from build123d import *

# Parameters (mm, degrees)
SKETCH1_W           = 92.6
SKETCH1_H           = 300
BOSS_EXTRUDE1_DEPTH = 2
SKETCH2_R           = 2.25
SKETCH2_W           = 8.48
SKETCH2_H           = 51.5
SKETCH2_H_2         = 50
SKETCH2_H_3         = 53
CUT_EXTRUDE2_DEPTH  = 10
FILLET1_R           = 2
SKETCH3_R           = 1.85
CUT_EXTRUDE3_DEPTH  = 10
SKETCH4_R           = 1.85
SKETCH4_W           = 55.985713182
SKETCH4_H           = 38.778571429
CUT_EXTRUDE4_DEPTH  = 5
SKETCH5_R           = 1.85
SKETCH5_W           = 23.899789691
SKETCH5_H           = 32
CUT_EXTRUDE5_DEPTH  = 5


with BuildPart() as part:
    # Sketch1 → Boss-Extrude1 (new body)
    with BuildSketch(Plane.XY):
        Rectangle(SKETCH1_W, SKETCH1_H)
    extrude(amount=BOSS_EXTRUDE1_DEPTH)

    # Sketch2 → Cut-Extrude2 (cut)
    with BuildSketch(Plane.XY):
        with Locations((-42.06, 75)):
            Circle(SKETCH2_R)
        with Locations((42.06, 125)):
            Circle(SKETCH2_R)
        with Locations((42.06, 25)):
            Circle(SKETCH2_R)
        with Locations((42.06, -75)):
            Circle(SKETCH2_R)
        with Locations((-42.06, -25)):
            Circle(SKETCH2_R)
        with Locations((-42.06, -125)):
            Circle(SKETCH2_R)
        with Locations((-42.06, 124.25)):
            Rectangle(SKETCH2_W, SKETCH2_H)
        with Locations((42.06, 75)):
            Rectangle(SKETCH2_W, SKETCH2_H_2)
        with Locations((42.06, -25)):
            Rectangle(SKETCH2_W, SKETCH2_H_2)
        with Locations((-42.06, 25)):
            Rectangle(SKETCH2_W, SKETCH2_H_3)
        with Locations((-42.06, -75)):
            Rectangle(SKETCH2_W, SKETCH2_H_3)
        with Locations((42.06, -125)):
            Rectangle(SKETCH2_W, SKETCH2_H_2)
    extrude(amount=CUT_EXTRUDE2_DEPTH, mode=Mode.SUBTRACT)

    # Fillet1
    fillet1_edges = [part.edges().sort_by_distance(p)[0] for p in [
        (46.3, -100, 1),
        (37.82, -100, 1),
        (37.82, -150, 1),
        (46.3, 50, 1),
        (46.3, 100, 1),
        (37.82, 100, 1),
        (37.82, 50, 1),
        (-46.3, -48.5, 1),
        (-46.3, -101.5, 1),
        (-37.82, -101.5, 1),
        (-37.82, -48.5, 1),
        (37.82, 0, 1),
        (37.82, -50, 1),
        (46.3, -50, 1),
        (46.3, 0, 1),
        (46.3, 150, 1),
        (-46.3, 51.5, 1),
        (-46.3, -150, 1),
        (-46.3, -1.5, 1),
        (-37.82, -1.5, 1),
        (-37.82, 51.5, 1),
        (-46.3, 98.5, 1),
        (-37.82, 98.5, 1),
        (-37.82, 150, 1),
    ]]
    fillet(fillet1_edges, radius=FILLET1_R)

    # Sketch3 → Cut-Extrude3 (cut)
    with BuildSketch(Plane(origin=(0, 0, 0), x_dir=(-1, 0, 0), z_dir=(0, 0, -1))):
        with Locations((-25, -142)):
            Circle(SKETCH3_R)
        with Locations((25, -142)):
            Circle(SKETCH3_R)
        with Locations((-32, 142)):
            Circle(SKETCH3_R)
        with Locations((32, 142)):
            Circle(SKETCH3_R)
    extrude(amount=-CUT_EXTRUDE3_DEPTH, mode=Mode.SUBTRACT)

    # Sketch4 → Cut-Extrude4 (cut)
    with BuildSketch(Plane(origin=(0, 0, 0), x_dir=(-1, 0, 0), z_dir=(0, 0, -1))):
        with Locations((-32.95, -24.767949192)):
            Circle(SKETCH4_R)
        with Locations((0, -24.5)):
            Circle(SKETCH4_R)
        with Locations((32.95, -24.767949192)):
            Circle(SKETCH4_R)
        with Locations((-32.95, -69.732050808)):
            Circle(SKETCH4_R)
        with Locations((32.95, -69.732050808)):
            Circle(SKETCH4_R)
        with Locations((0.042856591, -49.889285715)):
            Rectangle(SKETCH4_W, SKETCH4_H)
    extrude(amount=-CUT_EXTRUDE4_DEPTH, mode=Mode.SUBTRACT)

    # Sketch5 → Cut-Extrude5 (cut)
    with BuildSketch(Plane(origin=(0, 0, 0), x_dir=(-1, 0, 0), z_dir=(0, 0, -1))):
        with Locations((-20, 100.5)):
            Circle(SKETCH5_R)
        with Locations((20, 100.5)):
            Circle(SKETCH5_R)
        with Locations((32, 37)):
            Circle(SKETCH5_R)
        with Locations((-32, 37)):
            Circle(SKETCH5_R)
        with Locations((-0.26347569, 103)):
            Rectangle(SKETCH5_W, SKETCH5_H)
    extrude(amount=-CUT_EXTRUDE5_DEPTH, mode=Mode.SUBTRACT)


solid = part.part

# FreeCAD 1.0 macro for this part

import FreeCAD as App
import Part
import Sketcher
from FreeCAD import Vector
Q = App.Units.Quantity


def edges_at(feature, points):
    """Names of the edges that pass closest to the given points."""
    edges = feature.Shape.Edges
    near = lambda p: min(range(len(edges)), key=lambda i: edges[i].distToShape(Part.Vertex(*p))[0])
    return sorted({f"Edge{near(p) + 1}" for p in points})

doc = App.newDocument("Part")
body = doc.addObject("PartDesign::Body", "Body")

# Sketch on XY plane
sketch1 = body.newObject("Sketcher::SketchObject", "Sketch")
sketch1.AttachmentSupport = (doc.getObject("XY_Plane"), [""])
sketch1.MapMode = "FlatFace"
sketch1.addGeometry(Part.LineSegment(Vector(-46, 150, 0), Vector(-46, -150, 0)), False)
sketch1.addGeometry(Part.LineSegment(Vector(-46, -150, 0), Vector(46, -150, 0)), False)
sketch1.addGeometry(Part.LineSegment(Vector(46, -150, 0), Vector(46, 150, 0)), False)
sketch1.addGeometry(Part.LineSegment(Vector(46, 150, 0), Vector(-46, 150, 0)), False)
sketch1.addConstraint(Sketcher.Constraint("Coincident", 0, 2, 1, 1))
sketch1.addConstraint(Sketcher.Constraint("Coincident", 1, 2, 2, 1))
sketch1.addConstraint(Sketcher.Constraint("Coincident", 2, 2, 3, 1))
sketch1.addConstraint(Sketcher.Constraint("Coincident", 3, 2, 0, 1))
sketch1.addConstraint(Sketcher.Constraint("Vertical", 0))
sketch1.addConstraint(Sketcher.Constraint("Horizontal", 1))
sketch1.addConstraint(Sketcher.Constraint("Vertical", 2))
sketch1.addConstraint(Sketcher.Constraint("Horizontal", 3))
sketch1.addConstraint(Sketcher.Constraint("Symmetric", 0, 2, 2, 2, -1, 1))
sketch1.addConstraint(Sketcher.Constraint("DistanceY", 0, 2, 0, 1, Q("300 mm")))
sketch1.addConstraint(Sketcher.Constraint("DistanceX", 1, 1, 1, 2, Q("92.6 mm")))
pad1 = body.newObject("PartDesign::Pad", "Pad")
pad1.Profile = sketch1
pad1.Length = 2

# Sketch on XY plane
sketch2 = body.newObject("Sketcher::SketchObject", "Sketch001")
sketch2.AttachmentSupport = (doc.getObject("XY_Plane"), [""])
sketch2.MapMode = "FlatFace"
sketch2.addGeometry(Part.Circle(Vector(-42.1, 75, 0), Vector(0, 0, 1), 2.2), False)
sketch2.addGeometry(Part.Circle(Vector(42.1, 125, 0), Vector(0, 0, 1), 2.2), False)
sketch2.addGeometry(Part.Circle(Vector(42.1, 25, 0), Vector(0, 0, 1), 2.2), False)
sketch2.addGeometry(Part.Circle(Vector(42.1, -75, 0), Vector(0, 0, 1), 2.2), False)
sketch2.addGeometry(Part.Circle(Vector(-42.1, -25, 0), Vector(0, 0, 1), 2.2), False)
sketch2.addGeometry(Part.Circle(Vector(-42.1, -125, 0), Vector(0, 0, 1), 2.2), False)
sketch2.addGeometry(Part.LineSegment(Vector(-46.3, 150, 0), Vector(-46.3, 98.5, 0)), False)
sketch2.addGeometry(Part.LineSegment(Vector(-46.3, 98.5, 0), Vector(-37.8, 98.5, 0)), False)
sketch2.addGeometry(Part.LineSegment(Vector(-37.8, 98.5, 0), Vector(-37.8, 150, 0)), False)
sketch2.addGeometry(Part.LineSegment(Vector(-37.8, 150, 0), Vector(-46.3, 150, 0)), False)
sketch2.addGeometry(Part.LineSegment(Vector(37.8, 100, 0), Vector(37.8, 50, 0)), False)
sketch2.addGeometry(Part.LineSegment(Vector(37.8, 50, 0), Vector(46.3, 50, 0)), False)
sketch2.addGeometry(Part.LineSegment(Vector(46.3, 50, 0), Vector(46.3, 100, 0)), False)
sketch2.addGeometry(Part.LineSegment(Vector(46.3, 100, 0), Vector(37.8, 100, 0)), False)
sketch2.addGeometry(Part.LineSegment(Vector(37.8, 0, 0), Vector(37.8, -50, 0)), False)
sketch2.addGeometry(Part.LineSegment(Vector(37.8, -50, 0), Vector(46.3, -50, 0)), False)
sketch2.addGeometry(Part.LineSegment(Vector(46.3, -50, 0), Vector(46.3, 0, 0)), False)
sketch2.addGeometry(Part.LineSegment(Vector(46.3, 0, 0), Vector(37.8, 0, 0)), False)
sketch2.addGeometry(Part.LineSegment(Vector(-46.3, 51.5, 0), Vector(-46.3, -1.5, 0)), False)
sketch2.addGeometry(Part.LineSegment(Vector(-46.3, -1.5, 0), Vector(-37.8, -1.5, 0)), False)
sketch2.addGeometry(Part.LineSegment(Vector(-37.8, -1.5, 0), Vector(-37.8, 51.5, 0)), False)
sketch2.addGeometry(Part.LineSegment(Vector(-37.8, 51.5, 0), Vector(-46.3, 51.5, 0)), False)
sketch2.addGeometry(Part.LineSegment(Vector(-46.3, -48.5, 0), Vector(-46.3, -101.5, 0)), False)
sketch2.addGeometry(Part.LineSegment(Vector(-46.3, -101.5, 0), Vector(-37.8, -101.5, 0)), False)
sketch2.addGeometry(Part.LineSegment(Vector(-37.8, -101.5, 0), Vector(-37.8, -48.5, 0)), False)
sketch2.addGeometry(Part.LineSegment(Vector(-37.8, -48.5, 0), Vector(-46.3, -48.5, 0)), False)
sketch2.addGeometry(Part.LineSegment(Vector(37.8, -100, 0), Vector(37.8, -150, 0)), False)
sketch2.addGeometry(Part.LineSegment(Vector(37.8, -150, 0), Vector(46.3, -150, 0)), False)
sketch2.addGeometry(Part.LineSegment(Vector(46.3, -150, 0), Vector(46.3, -100, 0)), False)
sketch2.addGeometry(Part.LineSegment(Vector(46.3, -100, 0), Vector(37.8, -100, 0)), False)
sketch2.addConstraint(Sketcher.Constraint("Coincident", 6, 2, 7, 1))
sketch2.addConstraint(Sketcher.Constraint("Coincident", 7, 2, 8, 1))
sketch2.addConstraint(Sketcher.Constraint("Coincident", 8, 2, 9, 1))
sketch2.addConstraint(Sketcher.Constraint("Coincident", 9, 2, 6, 1))
sketch2.addConstraint(Sketcher.Constraint("Coincident", 10, 2, 11, 1))
sketch2.addConstraint(Sketcher.Constraint("Coincident", 11, 2, 12, 1))
sketch2.addConstraint(Sketcher.Constraint("Coincident", 12, 2, 13, 1))
sketch2.addConstraint(Sketcher.Constraint("Coincident", 13, 2, 10, 1))
sketch2.addConstraint(Sketcher.Constraint("Coincident", 14, 2, 15, 1))
sketch2.addConstraint(Sketcher.Constraint("Coincident", 15, 2, 16, 1))
sketch2.addConstraint(Sketcher.Constraint("Coincident", 16, 2, 17, 1))
sketch2.addConstraint(Sketcher.Constraint("Coincident", 17, 2, 14, 1))
sketch2.addConstraint(Sketcher.Constraint("Coincident", 18, 2, 19, 1))
sketch2.addConstraint(Sketcher.Constraint("Coincident", 19, 2, 20, 1))
sketch2.addConstraint(Sketcher.Constraint("Coincident", 20, 2, 21, 1))
sketch2.addConstraint(Sketcher.Constraint("Coincident", 21, 2, 18, 1))
sketch2.addConstraint(Sketcher.Constraint("Coincident", 22, 2, 23, 1))
sketch2.addConstraint(Sketcher.Constraint("Coincident", 23, 2, 24, 1))
sketch2.addConstraint(Sketcher.Constraint("Coincident", 24, 2, 25, 1))
sketch2.addConstraint(Sketcher.Constraint("Coincident", 25, 2, 22, 1))
sketch2.addConstraint(Sketcher.Constraint("Coincident", 26, 2, 27, 1))
sketch2.addConstraint(Sketcher.Constraint("Coincident", 27, 2, 28, 1))
sketch2.addConstraint(Sketcher.Constraint("Coincident", 28, 2, 29, 1))
sketch2.addConstraint(Sketcher.Constraint("Coincident", 29, 2, 26, 1))
sketch2.addConstraint(Sketcher.Constraint("Vertical", 6))
sketch2.addConstraint(Sketcher.Constraint("Horizontal", 7))
sketch2.addConstraint(Sketcher.Constraint("Vertical", 8))
sketch2.addConstraint(Sketcher.Constraint("Horizontal", 9))
sketch2.addConstraint(Sketcher.Constraint("Vertical", 10))
sketch2.addConstraint(Sketcher.Constraint("Horizontal", 11))
sketch2.addConstraint(Sketcher.Constraint("Vertical", 12))
sketch2.addConstraint(Sketcher.Constraint("Horizontal", 13))
sketch2.addConstraint(Sketcher.Constraint("Vertical", 14))
sketch2.addConstraint(Sketcher.Constraint("Horizontal", 15))
sketch2.addConstraint(Sketcher.Constraint("Vertical", 16))
sketch2.addConstraint(Sketcher.Constraint("Horizontal", 17))
sketch2.addConstraint(Sketcher.Constraint("Vertical", 18))
sketch2.addConstraint(Sketcher.Constraint("Horizontal", 19))
sketch2.addConstraint(Sketcher.Constraint("Vertical", 20))
sketch2.addConstraint(Sketcher.Constraint("Horizontal", 21))
sketch2.addConstraint(Sketcher.Constraint("Vertical", 22))
sketch2.addConstraint(Sketcher.Constraint("Horizontal", 23))
sketch2.addConstraint(Sketcher.Constraint("Vertical", 24))
sketch2.addConstraint(Sketcher.Constraint("Horizontal", 25))
sketch2.addConstraint(Sketcher.Constraint("Vertical", 26))
sketch2.addConstraint(Sketcher.Constraint("Horizontal", 27))
sketch2.addConstraint(Sketcher.Constraint("Vertical", 28))
sketch2.addConstraint(Sketcher.Constraint("Horizontal", 29))
sketch2.addConstraint(Sketcher.Constraint("Equal", 0, 1))
sketch2.addConstraint(Sketcher.Constraint("Equal", 1, 2))
sketch2.addConstraint(Sketcher.Constraint("Equal", 2, 3))
sketch2.addConstraint(Sketcher.Constraint("Equal", 3, 4))
sketch2.addConstraint(Sketcher.Constraint("Equal", 4, 5))
sketch2.addConstraint(Sketcher.Constraint("Symmetric", 0, 3, 3, 3, -1, 1))
sketch2.addConstraint(Sketcher.Constraint("Symmetric", 2, 3, 4, 3, -1, 1))
sketch2.addConstraint(Sketcher.Constraint("Symmetric", 1, 3, 5, 3, -1, 1))
sketch2.addConstraint(Sketcher.Constraint("Symmetric", 8, 2, 26, 2, -1, 1))
sketch2.addConstraint(Sketcher.Constraint("Symmetric", 10, 2, 14, 2, -1))
sketch2.addConstraint(Sketcher.Constraint("Symmetric", 12, 2, 28, 2, -1))
sketch2.addConstraint(Sketcher.Constraint("PointOnObject", 16, 2, -1))
sketch2.addConstraint(Sketcher.Constraint("Vertical", 1, 3, 2, 3))
sketch2.addConstraint(Sketcher.Constraint("Vertical", 2, 3, 3, 3))
sketch2.addConstraint(Sketcher.Constraint("Vertical", 12, 2, 15, 2))
sketch2.addConstraint(Sketcher.Constraint("Vertical", 9, 2, 18, 2))
sketch2.addConstraint(Sketcher.Constraint("Vertical", 8, 2, 19, 2))
sketch2.addConstraint(Sketcher.Constraint("Vertical", 21, 2, 22, 2))
sketch2.addConstraint(Sketcher.Constraint("Vertical", 20, 2, 23, 2))
sketch2.addConstraint(Sketcher.Constraint("Vertical", 17, 2, 26, 2))
sketch2.addConstraint(Sketcher.Constraint("Equal", 9, 11))
sketch2.addConstraint(Sketcher.Constraint("Equal", 12, 14))
sketch2.addConstraint(Sketcher.Constraint("Equal", 20, 22))
sketch2.addConstraint(Sketcher.Constraint("Equal", 16, 26))
sketch2.addConstraint(Sketcher.Constraint("Diameter", 0, Q("4.5 mm")))
sketch2.addConstraint(Sketcher.Constraint("DistanceY", 10, 2, 10, 1, Q("50 mm")))
sketch2.addConstraint(Sketcher.Constraint("DistanceY", 18, 2, 18, 1, Q("53 mm")))
sketch2.addConstraint(Sketcher.Constraint("DistanceY", 6, 2, 6, 1, Q("51.5 mm")))
sketch2.addConstraint(Sketcher.Constraint("DistanceY", -1, 1, 0, 3, Q("75 mm")))
sketch2.addConstraint(Sketcher.Constraint("DistanceY", -1, 1, 1, 3, Q("125 mm")))
sketch2.addConstraint(Sketcher.Constraint("DistanceY", -1, 1, 2, 3, Q("25 mm")))
sketch2.addConstraint(Sketcher.Constraint("DistanceY", 20, 2, 7, 2, Q("47 mm")))
sketch2.addConstraint(Sketcher.Constraint("DistanceY", 22, 2, 18, 2, Q("100 mm")))
sketch2.addConstraint(Sketcher.Constraint("DistanceX", 7, 1, 7, 2, Q("8.48 mm")))
sketch2.addConstraint(Sketcher.Constraint("DistanceX", 6, 2, -1, 1, Q("46.3 mm")))
sketch2.addConstraint(Sketcher.Constraint("DistanceX", 0, 3, -1, 1, Q("42.06 mm")))
pocket1 = body.newObject("PartDesign::Pocket", "Pocket")
pocket1.Profile = sketch2
pocket1.Length = 10
pocket1.Reversed = True
doc.recompute()

fillet = body.newObject("PartDesign::Fillet", "Fillet")
fillet.Base = (pocket1, edges_at(pocket1, [
    (46.3, -100, 1),
    (37.82, -100, 1),
    (37.82, -150, 1),
    (46.3, 50, 1),
    (46.3, 100, 1),
    (37.82, 100, 1),
    (37.82, 50, 1),
    (-46.3, -48.5, 1),
    (-46.3, -101.5, 1),
    (-37.82, -101.5, 1),
    (-37.82, -48.5, 1),
    (37.82, 0, 1),
    (37.82, -50, 1),
    (46.3, -50, 1),
    (46.3, 0, 1),
    (46.3, 150, 1),
    (-46.3, 51.5, 1),
    (-46.3, -150, 1),
    (-46.3, -1.5, 1),
    (-37.82, -1.5, 1),
    (-37.82, 51.5, 1),
    (-46.3, 98.5, 1),
    (-37.82, 98.5, 1),
    (-37.82, 150, 1),
]))
fillet.Radius = 2

# Sketch on XY plane
sketch3 = body.newObject("Sketcher::SketchObject", "Sketch002")
sketch3.AttachmentSupport = (doc.getObject("XY_Plane"), [""])
sketch3.MapMode = "FlatFace"
sketch3.addGeometry(Part.Circle(Vector(25, -142, 0), Vector(0, 0, 1), 1.9), False)
sketch3.addGeometry(Part.Circle(Vector(-25, -142, 0), Vector(0, 0, 1), 1.9), False)
sketch3.addGeometry(Part.Circle(Vector(32, 142, 0), Vector(0, 0, 1), 1.9), False)
sketch3.addGeometry(Part.Circle(Vector(-32, 142, 0), Vector(0, 0, 1), 1.9), False)
sketch3.addConstraint(Sketcher.Constraint("Equal", 0, 1))
sketch3.addConstraint(Sketcher.Constraint("Equal", 1, 2))
sketch3.addConstraint(Sketcher.Constraint("Equal", 2, 3))
sketch3.addConstraint(Sketcher.Constraint("Symmetric", 0, 3, 1, 3, -2))
sketch3.addConstraint(Sketcher.Constraint("Symmetric", 2, 3, 3, 3, -2))
sketch3.addConstraint(Sketcher.Constraint("Diameter", 0, Q("3.7 mm")))
sketch3.addConstraint(Sketcher.Constraint("DistanceX", -1, 1, 0, 3, Q("25 mm")))
sketch3.addConstraint(Sketcher.Constraint("DistanceY", 0, 3, -1, 1, Q("142 mm")))
sketch3.addConstraint(Sketcher.Constraint("DistanceX", -1, 1, 2, 3, Q("32 mm")))
sketch3.addConstraint(Sketcher.Constraint("DistanceY", -1, 1, 2, 3, Q("142 mm")))
pocket2 = body.newObject("PartDesign::Pocket", "Pocket001")
pocket2.Profile = sketch3
pocket2.Length = 10
pocket2.Reversed = True

# Sketch on XY plane
sketch4 = body.newObject("Sketcher::SketchObject", "Sketch003")
sketch4.AttachmentSupport = (doc.getObject("XY_Plane"), [""])
sketch4.MapMode = "FlatFace"
sketch4.addGeometry(Part.Circle(Vector(33, -24.8, 0), Vector(0, 0, 1), 1.9), False)
sketch4.addGeometry(Part.Circle(Vector(0, -24.5, 0), Vector(0, 0, 1), 1.9), False)
sketch4.addGeometry(Part.Circle(Vector(-33, -24.8, 0), Vector(0, 0, 1), 1.9), False)
sketch4.addGeometry(Part.Circle(Vector(33, -69.7, 0), Vector(0, 0, 1), 1.9), False)
sketch4.addGeometry(Part.Circle(Vector(-33, -69.7, 0), Vector(0, 0, 1), 1.9), False)
sketch4.addGeometry(Part.LineSegment(Vector(27.9, -30.5, 0), Vector(27.9, -69.3, 0)), False)
sketch4.addGeometry(Part.LineSegment(Vector(27.9, -69.3, 0), Vector(-28, -69.3, 0)), False)
sketch4.addGeometry(Part.LineSegment(Vector(-28, -69.3, 0), Vector(-28, -30.5, 0)), False)
sketch4.addGeometry(Part.LineSegment(Vector(-28, -30.5, 0), Vector(27.9, -30.5, 0)), False)
sketch4.addConstraint(Sketcher.Constraint("Coincident", 5, 2, 6, 1))
sketch4.addConstraint(Sketcher.Constraint("Coincident", 6, 2, 7, 1))
sketch4.addConstraint(Sketcher.Constraint("Coincident", 7, 2, 8, 1))
sketch4.addConstraint(Sketcher.Constraint("Coincident", 8, 2, 5, 1))
sketch4.addConstraint(Sketcher.Constraint("Vertical", 5))
sketch4.addConstraint(Sketcher.Constraint("Horizontal", 6))
sketch4.addConstraint(Sketcher.Constraint("Vertical", 7))
sketch4.addConstraint(Sketcher.Constraint("Horizontal", 8))
sketch4.addConstraint(Sketcher.Constraint("Equal", 0, 1))
sketch4.addConstraint(Sketcher.Constraint("Equal", 1, 2))
sketch4.addConstraint(Sketcher.Constraint("Equal", 2, 3))
sketch4.addConstraint(Sketcher.Constraint("Equal", 3, 4))
sketch4.addConstraint(Sketcher.Constraint("Symmetric", 0, 3, 2, 3, -2))
sketch4.addConstraint(Sketcher.Constraint("Symmetric", 3, 3, 4, 3, -2))
sketch4.addConstraint(Sketcher.Constraint("PointOnObject", 1, 3, -2))
sketch4.addConstraint(Sketcher.Constraint("Vertical", 0, 3, 3, 3))
sketch4.addConstraint(Sketcher.Constraint("Diameter", 0, Q("3.7 mm")))
sketch4.addConstraint(Sketcher.Constraint("DistanceX", 5, 2, 3, 3, Q("5 mm")))
sketch4.addConstraint(Sketcher.Constraint("DistanceY", 7, 2, 1, 3, Q("6 mm")))
sketch4.addConstraint(Sketcher.Constraint("DistanceY", 1, 3, -1, 1, Q("24.5 mm")))
sketch4.addConstraint(Sketcher.Constraint("DistanceX", 2, 3, 0, 3, Q("65.9 mm")))
sketch4.addConstraint(Sketcher.Constraint("DistanceY", 5, 2, 5, 1, Q("38.778571 mm")))
sketch4.addConstraint(Sketcher.Constraint("DistanceY", 3, 3, 0, 3, Q("44.964102 mm")))
sketch4.addConstraint(Sketcher.Constraint("DistanceX", 6, 2, 6, 1, Q("55.985713 mm")))
sketch4.addConstraint(Sketcher.Constraint("DistanceY", 0, 3, -1, 1, Q("24.767949 mm")))
pocket3 = body.newObject("PartDesign::Pocket", "Pocket002")
pocket3.Profile = sketch4
pocket3.Length = 5
pocket3.Reversed = True

# Sketch on XY plane
sketch5 = body.newObject("Sketcher::SketchObject", "Sketch004")
sketch5.AttachmentSupport = (doc.getObject("XY_Plane"), [""])
sketch5.MapMode = "FlatFace"
sketch5.addGeometry(Part.Circle(Vector(20, 100.5, 0), Vector(0, 0, 1), 1.9), False)
sketch5.addGeometry(Part.Circle(Vector(-20, 100.5, 0), Vector(0, 0, 1), 1.9), False)
sketch5.addGeometry(Part.Circle(Vector(-32, 37, 0), Vector(0, 0, 1), 1.9), False)
sketch5.addGeometry(Part.Circle(Vector(32, 37, 0), Vector(0, 0, 1), 1.9), False)
sketch5.addGeometry(Part.LineSegment(Vector(12.2, 119, 0), Vector(12.2, 87, 0)), False)
sketch5.addGeometry(Part.LineSegment(Vector(12.2, 87, 0), Vector(-11.7, 87, 0)), False)
sketch5.addGeometry(Part.LineSegment(Vector(-11.7, 87, 0), Vector(-11.7, 119, 0)), False)
sketch5.addGeometry(Part.LineSegment(Vector(-11.7, 119, 0), Vector(12.2, 119, 0)), False)
sketch5.addConstraint(Sketcher.Constraint("Coincident", 4, 2, 5, 1))
sketch5.addConstraint(Sketcher.Constraint("Coincident", 5, 2, 6, 1))
sketch5.addConstraint(Sketcher.Constraint("Coincident", 6, 2, 7, 1))
sketch5.addConstraint(Sketcher.Constraint("Coincident", 7, 2, 4, 1))
sketch5.addConstraint(Sketcher.Constraint("Vertical", 4))
sketch5.addConstraint(Sketcher.Constraint("Horizontal", 5))
sketch5.addConstraint(Sketcher.Constraint("Vertical", 6))
sketch5.addConstraint(Sketcher.Constraint("Horizontal", 7))
sketch5.addConstraint(Sketcher.Constraint("Equal", 0, 1))
sketch5.addConstraint(Sketcher.Constraint("Equal", 1, 2))
sketch5.addConstraint(Sketcher.Constraint("Equal", 2, 3))
sketch5.addConstraint(Sketcher.Constraint("Symmetric", 0, 3, 1, 3, -2))
sketch5.addConstraint(Sketcher.Constraint("Symmetric", 2, 3, 3, 3, -2))
sketch5.addConstraint(Sketcher.Constraint("Diameter", 0, Q("3.7 mm")))
sketch5.addConstraint(Sketcher.Constraint("DistanceY", 4, 2, 4, 1, Q("32 mm")))
sketch5.addConstraint(Sketcher.Constraint("DistanceX", -1, 1, 0, 3, Q("20 mm")))
sketch5.addConstraint(Sketcher.Constraint("DistanceX", 2, 3, -1, 1, Q("32 mm")))
sketch5.addConstraint(Sketcher.Constraint("DistanceY", -1, 1, 2, 3, Q("37 mm")))
sketch5.addConstraint(Sketcher.Constraint("DistanceY", -1, 1, 4, 2, Q("87 mm")))
sketch5.addConstraint(Sketcher.Constraint("DistanceY", -1, 1, 0, 3, Q("100.5 mm")))
sketch5.addConstraint(Sketcher.Constraint("DistanceX", 5, 2, 5, 1, Q("23.89979 mm")))
sketch5.addConstraint(Sketcher.Constraint("DistanceX", -1, 1, 4, 2, Q("12.213371 mm")))
pocket4 = body.newObject("PartDesign::Pocket", "Pocket003")
pocket4.Profile = sketch5
pocket4.Length = 5
pocket4.Reversed = True

doc.recompute()
